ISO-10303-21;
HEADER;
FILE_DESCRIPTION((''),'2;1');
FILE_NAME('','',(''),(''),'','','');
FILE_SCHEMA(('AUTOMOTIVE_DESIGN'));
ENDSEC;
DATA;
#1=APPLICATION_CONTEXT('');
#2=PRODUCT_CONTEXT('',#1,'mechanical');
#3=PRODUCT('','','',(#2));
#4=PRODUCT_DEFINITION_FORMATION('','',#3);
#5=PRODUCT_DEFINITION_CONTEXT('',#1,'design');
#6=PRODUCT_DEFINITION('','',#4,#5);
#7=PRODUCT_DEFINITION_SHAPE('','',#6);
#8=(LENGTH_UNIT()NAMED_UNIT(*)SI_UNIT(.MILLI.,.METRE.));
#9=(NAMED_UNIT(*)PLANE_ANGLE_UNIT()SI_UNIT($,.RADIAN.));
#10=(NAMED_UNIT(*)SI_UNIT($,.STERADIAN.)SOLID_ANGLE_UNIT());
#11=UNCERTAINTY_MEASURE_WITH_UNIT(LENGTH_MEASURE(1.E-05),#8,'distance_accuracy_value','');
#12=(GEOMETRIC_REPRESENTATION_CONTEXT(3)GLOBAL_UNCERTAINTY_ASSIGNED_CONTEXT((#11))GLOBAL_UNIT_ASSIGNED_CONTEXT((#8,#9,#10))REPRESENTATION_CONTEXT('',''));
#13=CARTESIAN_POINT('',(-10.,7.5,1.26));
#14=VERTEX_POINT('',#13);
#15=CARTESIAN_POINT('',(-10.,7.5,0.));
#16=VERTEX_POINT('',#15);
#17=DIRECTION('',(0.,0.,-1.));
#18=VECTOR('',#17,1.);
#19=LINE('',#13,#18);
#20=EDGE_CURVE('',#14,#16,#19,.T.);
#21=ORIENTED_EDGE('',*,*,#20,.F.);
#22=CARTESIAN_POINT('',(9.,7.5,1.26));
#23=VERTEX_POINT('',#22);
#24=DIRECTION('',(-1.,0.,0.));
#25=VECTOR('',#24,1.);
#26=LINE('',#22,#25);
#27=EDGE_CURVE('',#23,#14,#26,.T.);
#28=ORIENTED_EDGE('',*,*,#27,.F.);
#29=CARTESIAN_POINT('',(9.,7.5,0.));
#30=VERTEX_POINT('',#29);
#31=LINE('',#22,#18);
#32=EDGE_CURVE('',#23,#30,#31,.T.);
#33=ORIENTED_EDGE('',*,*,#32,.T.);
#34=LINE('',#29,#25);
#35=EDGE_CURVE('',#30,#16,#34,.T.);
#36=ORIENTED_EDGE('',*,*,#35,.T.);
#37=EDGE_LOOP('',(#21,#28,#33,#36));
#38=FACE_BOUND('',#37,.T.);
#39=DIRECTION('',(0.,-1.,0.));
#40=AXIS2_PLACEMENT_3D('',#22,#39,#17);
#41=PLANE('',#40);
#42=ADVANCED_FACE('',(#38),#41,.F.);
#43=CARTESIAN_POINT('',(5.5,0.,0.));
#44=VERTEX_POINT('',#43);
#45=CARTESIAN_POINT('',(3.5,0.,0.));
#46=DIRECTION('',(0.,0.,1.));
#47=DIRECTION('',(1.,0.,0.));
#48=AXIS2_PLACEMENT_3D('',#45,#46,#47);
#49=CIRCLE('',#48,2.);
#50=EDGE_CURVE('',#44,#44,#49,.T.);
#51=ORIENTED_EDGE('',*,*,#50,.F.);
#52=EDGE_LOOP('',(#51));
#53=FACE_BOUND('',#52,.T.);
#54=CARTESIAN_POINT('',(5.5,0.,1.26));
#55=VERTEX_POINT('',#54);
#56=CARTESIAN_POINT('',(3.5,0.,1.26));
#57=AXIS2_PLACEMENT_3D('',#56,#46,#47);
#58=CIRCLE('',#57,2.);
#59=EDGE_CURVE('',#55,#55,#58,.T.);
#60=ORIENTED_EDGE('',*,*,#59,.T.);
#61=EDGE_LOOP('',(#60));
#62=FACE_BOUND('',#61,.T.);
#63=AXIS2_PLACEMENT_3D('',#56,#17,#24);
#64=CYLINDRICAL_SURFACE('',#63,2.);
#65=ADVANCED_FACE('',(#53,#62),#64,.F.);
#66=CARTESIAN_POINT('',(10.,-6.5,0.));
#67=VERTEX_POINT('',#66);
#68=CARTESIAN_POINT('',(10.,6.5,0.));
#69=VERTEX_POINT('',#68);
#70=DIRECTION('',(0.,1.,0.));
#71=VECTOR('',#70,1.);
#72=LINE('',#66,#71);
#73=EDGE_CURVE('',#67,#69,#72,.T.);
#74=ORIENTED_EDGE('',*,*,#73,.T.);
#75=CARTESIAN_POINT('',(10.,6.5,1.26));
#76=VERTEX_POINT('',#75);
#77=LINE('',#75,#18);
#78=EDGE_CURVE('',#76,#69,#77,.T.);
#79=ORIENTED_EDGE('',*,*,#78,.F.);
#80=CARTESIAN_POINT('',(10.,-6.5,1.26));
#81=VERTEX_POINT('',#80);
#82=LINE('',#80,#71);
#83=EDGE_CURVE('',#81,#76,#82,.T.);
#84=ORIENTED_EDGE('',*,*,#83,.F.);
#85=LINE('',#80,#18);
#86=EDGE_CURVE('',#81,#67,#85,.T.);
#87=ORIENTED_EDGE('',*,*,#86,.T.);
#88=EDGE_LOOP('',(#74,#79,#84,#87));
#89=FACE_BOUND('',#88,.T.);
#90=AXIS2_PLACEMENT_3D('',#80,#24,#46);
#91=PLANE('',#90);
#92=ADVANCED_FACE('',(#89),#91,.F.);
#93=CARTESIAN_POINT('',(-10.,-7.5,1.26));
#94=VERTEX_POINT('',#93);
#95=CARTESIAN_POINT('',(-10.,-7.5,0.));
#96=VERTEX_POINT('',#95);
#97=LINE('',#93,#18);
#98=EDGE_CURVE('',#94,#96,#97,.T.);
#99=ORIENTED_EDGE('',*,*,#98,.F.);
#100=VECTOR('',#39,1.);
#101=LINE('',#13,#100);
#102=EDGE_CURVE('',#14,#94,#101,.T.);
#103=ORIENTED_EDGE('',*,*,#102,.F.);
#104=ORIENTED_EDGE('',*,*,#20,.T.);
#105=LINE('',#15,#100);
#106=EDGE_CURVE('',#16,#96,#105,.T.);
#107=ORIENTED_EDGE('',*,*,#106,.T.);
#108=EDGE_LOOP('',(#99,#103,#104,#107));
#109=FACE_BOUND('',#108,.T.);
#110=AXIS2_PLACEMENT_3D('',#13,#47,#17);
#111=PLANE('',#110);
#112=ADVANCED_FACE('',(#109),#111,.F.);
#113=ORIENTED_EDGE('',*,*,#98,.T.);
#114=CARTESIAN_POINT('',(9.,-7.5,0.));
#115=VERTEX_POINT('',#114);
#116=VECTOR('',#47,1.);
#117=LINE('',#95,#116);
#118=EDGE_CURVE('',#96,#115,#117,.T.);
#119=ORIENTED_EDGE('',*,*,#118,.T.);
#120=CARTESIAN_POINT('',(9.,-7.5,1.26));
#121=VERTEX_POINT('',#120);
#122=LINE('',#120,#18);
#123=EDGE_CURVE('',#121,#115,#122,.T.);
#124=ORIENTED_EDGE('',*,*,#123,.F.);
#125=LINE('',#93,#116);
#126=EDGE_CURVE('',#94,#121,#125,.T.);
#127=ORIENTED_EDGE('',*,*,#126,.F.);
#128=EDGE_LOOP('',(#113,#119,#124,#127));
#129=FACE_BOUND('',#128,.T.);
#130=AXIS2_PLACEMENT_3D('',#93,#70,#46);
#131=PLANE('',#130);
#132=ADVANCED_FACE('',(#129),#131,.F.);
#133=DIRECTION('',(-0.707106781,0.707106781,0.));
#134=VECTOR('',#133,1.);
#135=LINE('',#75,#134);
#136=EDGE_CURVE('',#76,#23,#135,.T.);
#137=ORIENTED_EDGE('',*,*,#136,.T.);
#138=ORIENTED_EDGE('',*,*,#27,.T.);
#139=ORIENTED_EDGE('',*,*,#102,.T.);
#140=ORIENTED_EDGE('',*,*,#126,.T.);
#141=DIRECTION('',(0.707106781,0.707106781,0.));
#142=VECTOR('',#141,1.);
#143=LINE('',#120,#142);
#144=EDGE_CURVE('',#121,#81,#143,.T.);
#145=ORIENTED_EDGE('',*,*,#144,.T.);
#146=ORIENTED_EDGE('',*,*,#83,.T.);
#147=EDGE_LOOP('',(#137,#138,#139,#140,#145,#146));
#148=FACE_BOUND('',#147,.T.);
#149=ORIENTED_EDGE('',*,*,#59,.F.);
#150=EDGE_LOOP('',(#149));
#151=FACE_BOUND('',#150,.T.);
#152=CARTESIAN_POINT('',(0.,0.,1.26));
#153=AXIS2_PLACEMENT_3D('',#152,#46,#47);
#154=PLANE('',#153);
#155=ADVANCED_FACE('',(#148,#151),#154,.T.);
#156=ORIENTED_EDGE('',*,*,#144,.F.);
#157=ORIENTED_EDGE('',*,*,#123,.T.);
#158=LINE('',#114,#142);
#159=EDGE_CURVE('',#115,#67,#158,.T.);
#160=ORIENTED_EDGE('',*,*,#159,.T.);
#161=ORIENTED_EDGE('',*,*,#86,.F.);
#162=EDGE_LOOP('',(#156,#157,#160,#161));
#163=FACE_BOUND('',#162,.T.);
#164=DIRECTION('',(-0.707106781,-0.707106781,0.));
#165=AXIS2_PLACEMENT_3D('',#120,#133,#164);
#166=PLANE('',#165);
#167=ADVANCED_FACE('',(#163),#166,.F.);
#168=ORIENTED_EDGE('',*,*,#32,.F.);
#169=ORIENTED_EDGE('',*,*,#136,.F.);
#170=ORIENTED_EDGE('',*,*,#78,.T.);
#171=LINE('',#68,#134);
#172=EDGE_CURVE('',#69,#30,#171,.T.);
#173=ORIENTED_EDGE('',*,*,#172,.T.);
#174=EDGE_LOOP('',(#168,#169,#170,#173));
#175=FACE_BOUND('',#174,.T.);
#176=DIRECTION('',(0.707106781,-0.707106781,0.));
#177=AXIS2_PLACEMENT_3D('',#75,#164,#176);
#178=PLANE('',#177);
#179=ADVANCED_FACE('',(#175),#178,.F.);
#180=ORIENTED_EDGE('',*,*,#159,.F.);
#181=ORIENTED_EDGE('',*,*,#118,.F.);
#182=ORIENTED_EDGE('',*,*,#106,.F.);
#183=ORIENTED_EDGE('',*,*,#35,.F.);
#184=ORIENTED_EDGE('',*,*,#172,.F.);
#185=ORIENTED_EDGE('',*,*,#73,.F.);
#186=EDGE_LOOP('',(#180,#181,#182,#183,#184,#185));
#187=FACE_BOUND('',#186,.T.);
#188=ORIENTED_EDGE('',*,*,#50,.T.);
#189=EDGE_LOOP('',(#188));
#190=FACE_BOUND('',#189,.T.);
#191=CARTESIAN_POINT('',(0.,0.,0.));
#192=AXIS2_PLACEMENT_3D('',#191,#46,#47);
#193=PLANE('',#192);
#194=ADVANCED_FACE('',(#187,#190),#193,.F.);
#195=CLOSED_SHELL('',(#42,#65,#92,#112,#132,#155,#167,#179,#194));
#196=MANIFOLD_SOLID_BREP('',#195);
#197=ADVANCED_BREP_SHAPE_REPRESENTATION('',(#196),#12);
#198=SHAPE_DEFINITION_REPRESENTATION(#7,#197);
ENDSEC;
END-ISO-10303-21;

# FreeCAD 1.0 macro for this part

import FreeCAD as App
import Part
import Sketcher

V = App.Vector
Q = App.Units.Quantity


def add_polygon(sketch, points):
    """Adds a closed chain of lines whose ends are joined by coincident constraints."""
    first, n = sketch.GeometryCount, len(points)
    for a, b in zip(points, points[1:] + points[:1]):
        sketch.addGeometry(Part.LineSegment(App.Vector(*a, 0), App.Vector(*b, 0)), False)
    for i in range(n):
        sketch.addConstraint(Sketcher.Constraint("Coincident", first + i, 2, first + (i + 1) % n, 1))

doc = App.newDocument("Part")
body = doc.addObject("PartDesign::Body", "Body")

# Sketch on XY plane
sketch1 = doc.addObject("Sketcher::SketchObject", "Sketch")
body.addObject(sketch1)
sketch1.AttachmentSupport = (doc.XY_Plane, [""])
sketch1.MapMode = "FlatFace"
add_polygon(sketch1, [(10, -6.5), (10, 6.5), (9, 7.5), (-10, 7.5), (-10, -7.5), (9, -7.5)])  # lines 0-5
sketch1.addGeometry(Part.Circle(V(3.5, 0, 0), V(0, 0, 1), 2), False)  # 6
sketch1.addConstraint(Sketcher.Constraint("Vertical", 0))
sketch1.addConstraint(Sketcher.Constraint("Horizontal", 2))
sketch1.addConstraint(Sketcher.Constraint("Vertical", 3))
sketch1.addConstraint(Sketcher.Constraint("Horizontal", 4))
sketch1.addConstraint(Sketcher.Constraint("Symmetric", 1, 2, 4, 2, -1))
sketch1.addConstraint(Sketcher.Constraint("PointOnObject", 6, 3, -1))
sketch1.addConstraint(Sketcher.Constraint("Perpendicular", 1, 5))
sketch1.addConstraint(Sketcher.Constraint("Equal", 1, 5))
sketch1.addConstraint(Sketcher.Constraint("Diameter", 6, Q("4 mm")))
sketch1.addConstraint(Sketcher.Constraint("DistanceX", 2, 2, 2, 1, Q("19 mm")))
sketch1.addConstraint(Sketcher.Constraint("DistanceY", 0, 1, 0, 2, Q("13 mm")))
sketch1.addConstraint(Sketcher.Constraint("DistanceY", 3, 2, 3, 1, Q("15 mm")))
sketch1.addConstraint(Sketcher.Constraint("DistanceX", -1, 1, 0, 2, Q("10 mm")))
sketch1.addConstraint(Sketcher.Constraint("DistanceX", -1, 1, 6, 3, Q("3.5 mm")))
pad1 = doc.addObject("PartDesign::Pad", "Pad")
body.addObject(pad1)
pad1.Profile = sketch1
pad1.Length = 1.26

doc.recompute()
